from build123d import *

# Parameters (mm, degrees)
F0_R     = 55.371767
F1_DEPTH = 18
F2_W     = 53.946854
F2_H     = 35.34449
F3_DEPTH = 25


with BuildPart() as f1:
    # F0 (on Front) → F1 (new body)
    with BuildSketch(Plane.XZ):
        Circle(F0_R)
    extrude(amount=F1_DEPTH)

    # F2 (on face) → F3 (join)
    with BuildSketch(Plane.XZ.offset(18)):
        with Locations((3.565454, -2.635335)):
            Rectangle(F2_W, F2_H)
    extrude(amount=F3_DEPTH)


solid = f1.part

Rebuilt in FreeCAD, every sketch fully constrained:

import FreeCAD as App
import Part
import Sketcher


def add_polygon(sketch, points):
    """Adds a closed chain of lines whose ends are joined by coincident constraints."""
    first, n = sketch.GeometryCount, len(points)
    for a, b in zip(points, points[1:] + points[:1]):
        sketch.addGeometry(Part.LineSegment(App.Vector(*a, 0), App.Vector(*b, 0)), False)
    for i in range(n):
        sketch.addConstraint(Sketcher.Constraint("Coincident", first + i, 2, first + (i + 1) % n, 1))

doc = App.newDocument("Part")
body = doc.addObject("PartDesign::Body", "Body")

# Sketch on XZ plane
sketch1 = body.newObject("Sketcher::SketchObject", "Sketch")
sketch1.AttachmentSupport = (doc.getObject("XZ_Plane"), [""])
sketch1.MapMode = "FlatFace"
sketch1.addGeometry(Part.Circle(App.Vector(0, 0, 0), App.Vector(0, 0, 1), 55), False)
sketch1.addConstraint(Sketcher.Constraint("Coincident", 0, 3, -1, 1))
sketch1.addConstraint(Sketcher.Constraint("Diameter", 0, 110.743534))
pad1 = body.newObject("PartDesign::Pad", "Pad")
pad1.Profile = sketch1
pad1.Length = 18

# Sketch on XZ plane
sketch2 = body.newObject("Sketcher::SketchObject", "Sketch001")
sketch2.AttachmentSupport = (doc.getObject("XZ_Plane"), [""])
sketch2.MapMode = "FlatFace"
sketch2.AttachmentOffset = App.Placement(App.Vector(0, 0, 18), App.Rotation())
add_polygon(sketch2, [(-23, 15), (-23, -20), (31, -20), (31, 15)])  # lines 0-3
sketch2.addConstraint(Sketcher.Constraint("Vertical", 0))
sketch2.addConstraint(Sketcher.Constraint("Horizontal", 1))
sketch2.addConstraint(Sketcher.Constraint("Vertical", 2))
sketch2.addConstraint(Sketcher.Constraint("Horizontal", 3))
sketch2.addConstraint(Sketcher.Constraint("DistanceY", 0, 2, 0, 1, 35.34449))
sketch2.addConstraint(Sketcher.Constraint("DistanceX", 1, 1, 1, 2, 53.946854))
sketch2.addConstraint(Sketcher.Constraint("DistanceY", 0, 2, -1, 1, 20.30758))
sketch2.addConstraint(Sketcher.Constraint("DistanceX", -1, 1, 1, 2, 30.538881))
pad2 = body.newObject("PartDesign::Pad", "Pad001")
pad2.Profile = sketch2
pad2.Length = 25

doc.recompute()
